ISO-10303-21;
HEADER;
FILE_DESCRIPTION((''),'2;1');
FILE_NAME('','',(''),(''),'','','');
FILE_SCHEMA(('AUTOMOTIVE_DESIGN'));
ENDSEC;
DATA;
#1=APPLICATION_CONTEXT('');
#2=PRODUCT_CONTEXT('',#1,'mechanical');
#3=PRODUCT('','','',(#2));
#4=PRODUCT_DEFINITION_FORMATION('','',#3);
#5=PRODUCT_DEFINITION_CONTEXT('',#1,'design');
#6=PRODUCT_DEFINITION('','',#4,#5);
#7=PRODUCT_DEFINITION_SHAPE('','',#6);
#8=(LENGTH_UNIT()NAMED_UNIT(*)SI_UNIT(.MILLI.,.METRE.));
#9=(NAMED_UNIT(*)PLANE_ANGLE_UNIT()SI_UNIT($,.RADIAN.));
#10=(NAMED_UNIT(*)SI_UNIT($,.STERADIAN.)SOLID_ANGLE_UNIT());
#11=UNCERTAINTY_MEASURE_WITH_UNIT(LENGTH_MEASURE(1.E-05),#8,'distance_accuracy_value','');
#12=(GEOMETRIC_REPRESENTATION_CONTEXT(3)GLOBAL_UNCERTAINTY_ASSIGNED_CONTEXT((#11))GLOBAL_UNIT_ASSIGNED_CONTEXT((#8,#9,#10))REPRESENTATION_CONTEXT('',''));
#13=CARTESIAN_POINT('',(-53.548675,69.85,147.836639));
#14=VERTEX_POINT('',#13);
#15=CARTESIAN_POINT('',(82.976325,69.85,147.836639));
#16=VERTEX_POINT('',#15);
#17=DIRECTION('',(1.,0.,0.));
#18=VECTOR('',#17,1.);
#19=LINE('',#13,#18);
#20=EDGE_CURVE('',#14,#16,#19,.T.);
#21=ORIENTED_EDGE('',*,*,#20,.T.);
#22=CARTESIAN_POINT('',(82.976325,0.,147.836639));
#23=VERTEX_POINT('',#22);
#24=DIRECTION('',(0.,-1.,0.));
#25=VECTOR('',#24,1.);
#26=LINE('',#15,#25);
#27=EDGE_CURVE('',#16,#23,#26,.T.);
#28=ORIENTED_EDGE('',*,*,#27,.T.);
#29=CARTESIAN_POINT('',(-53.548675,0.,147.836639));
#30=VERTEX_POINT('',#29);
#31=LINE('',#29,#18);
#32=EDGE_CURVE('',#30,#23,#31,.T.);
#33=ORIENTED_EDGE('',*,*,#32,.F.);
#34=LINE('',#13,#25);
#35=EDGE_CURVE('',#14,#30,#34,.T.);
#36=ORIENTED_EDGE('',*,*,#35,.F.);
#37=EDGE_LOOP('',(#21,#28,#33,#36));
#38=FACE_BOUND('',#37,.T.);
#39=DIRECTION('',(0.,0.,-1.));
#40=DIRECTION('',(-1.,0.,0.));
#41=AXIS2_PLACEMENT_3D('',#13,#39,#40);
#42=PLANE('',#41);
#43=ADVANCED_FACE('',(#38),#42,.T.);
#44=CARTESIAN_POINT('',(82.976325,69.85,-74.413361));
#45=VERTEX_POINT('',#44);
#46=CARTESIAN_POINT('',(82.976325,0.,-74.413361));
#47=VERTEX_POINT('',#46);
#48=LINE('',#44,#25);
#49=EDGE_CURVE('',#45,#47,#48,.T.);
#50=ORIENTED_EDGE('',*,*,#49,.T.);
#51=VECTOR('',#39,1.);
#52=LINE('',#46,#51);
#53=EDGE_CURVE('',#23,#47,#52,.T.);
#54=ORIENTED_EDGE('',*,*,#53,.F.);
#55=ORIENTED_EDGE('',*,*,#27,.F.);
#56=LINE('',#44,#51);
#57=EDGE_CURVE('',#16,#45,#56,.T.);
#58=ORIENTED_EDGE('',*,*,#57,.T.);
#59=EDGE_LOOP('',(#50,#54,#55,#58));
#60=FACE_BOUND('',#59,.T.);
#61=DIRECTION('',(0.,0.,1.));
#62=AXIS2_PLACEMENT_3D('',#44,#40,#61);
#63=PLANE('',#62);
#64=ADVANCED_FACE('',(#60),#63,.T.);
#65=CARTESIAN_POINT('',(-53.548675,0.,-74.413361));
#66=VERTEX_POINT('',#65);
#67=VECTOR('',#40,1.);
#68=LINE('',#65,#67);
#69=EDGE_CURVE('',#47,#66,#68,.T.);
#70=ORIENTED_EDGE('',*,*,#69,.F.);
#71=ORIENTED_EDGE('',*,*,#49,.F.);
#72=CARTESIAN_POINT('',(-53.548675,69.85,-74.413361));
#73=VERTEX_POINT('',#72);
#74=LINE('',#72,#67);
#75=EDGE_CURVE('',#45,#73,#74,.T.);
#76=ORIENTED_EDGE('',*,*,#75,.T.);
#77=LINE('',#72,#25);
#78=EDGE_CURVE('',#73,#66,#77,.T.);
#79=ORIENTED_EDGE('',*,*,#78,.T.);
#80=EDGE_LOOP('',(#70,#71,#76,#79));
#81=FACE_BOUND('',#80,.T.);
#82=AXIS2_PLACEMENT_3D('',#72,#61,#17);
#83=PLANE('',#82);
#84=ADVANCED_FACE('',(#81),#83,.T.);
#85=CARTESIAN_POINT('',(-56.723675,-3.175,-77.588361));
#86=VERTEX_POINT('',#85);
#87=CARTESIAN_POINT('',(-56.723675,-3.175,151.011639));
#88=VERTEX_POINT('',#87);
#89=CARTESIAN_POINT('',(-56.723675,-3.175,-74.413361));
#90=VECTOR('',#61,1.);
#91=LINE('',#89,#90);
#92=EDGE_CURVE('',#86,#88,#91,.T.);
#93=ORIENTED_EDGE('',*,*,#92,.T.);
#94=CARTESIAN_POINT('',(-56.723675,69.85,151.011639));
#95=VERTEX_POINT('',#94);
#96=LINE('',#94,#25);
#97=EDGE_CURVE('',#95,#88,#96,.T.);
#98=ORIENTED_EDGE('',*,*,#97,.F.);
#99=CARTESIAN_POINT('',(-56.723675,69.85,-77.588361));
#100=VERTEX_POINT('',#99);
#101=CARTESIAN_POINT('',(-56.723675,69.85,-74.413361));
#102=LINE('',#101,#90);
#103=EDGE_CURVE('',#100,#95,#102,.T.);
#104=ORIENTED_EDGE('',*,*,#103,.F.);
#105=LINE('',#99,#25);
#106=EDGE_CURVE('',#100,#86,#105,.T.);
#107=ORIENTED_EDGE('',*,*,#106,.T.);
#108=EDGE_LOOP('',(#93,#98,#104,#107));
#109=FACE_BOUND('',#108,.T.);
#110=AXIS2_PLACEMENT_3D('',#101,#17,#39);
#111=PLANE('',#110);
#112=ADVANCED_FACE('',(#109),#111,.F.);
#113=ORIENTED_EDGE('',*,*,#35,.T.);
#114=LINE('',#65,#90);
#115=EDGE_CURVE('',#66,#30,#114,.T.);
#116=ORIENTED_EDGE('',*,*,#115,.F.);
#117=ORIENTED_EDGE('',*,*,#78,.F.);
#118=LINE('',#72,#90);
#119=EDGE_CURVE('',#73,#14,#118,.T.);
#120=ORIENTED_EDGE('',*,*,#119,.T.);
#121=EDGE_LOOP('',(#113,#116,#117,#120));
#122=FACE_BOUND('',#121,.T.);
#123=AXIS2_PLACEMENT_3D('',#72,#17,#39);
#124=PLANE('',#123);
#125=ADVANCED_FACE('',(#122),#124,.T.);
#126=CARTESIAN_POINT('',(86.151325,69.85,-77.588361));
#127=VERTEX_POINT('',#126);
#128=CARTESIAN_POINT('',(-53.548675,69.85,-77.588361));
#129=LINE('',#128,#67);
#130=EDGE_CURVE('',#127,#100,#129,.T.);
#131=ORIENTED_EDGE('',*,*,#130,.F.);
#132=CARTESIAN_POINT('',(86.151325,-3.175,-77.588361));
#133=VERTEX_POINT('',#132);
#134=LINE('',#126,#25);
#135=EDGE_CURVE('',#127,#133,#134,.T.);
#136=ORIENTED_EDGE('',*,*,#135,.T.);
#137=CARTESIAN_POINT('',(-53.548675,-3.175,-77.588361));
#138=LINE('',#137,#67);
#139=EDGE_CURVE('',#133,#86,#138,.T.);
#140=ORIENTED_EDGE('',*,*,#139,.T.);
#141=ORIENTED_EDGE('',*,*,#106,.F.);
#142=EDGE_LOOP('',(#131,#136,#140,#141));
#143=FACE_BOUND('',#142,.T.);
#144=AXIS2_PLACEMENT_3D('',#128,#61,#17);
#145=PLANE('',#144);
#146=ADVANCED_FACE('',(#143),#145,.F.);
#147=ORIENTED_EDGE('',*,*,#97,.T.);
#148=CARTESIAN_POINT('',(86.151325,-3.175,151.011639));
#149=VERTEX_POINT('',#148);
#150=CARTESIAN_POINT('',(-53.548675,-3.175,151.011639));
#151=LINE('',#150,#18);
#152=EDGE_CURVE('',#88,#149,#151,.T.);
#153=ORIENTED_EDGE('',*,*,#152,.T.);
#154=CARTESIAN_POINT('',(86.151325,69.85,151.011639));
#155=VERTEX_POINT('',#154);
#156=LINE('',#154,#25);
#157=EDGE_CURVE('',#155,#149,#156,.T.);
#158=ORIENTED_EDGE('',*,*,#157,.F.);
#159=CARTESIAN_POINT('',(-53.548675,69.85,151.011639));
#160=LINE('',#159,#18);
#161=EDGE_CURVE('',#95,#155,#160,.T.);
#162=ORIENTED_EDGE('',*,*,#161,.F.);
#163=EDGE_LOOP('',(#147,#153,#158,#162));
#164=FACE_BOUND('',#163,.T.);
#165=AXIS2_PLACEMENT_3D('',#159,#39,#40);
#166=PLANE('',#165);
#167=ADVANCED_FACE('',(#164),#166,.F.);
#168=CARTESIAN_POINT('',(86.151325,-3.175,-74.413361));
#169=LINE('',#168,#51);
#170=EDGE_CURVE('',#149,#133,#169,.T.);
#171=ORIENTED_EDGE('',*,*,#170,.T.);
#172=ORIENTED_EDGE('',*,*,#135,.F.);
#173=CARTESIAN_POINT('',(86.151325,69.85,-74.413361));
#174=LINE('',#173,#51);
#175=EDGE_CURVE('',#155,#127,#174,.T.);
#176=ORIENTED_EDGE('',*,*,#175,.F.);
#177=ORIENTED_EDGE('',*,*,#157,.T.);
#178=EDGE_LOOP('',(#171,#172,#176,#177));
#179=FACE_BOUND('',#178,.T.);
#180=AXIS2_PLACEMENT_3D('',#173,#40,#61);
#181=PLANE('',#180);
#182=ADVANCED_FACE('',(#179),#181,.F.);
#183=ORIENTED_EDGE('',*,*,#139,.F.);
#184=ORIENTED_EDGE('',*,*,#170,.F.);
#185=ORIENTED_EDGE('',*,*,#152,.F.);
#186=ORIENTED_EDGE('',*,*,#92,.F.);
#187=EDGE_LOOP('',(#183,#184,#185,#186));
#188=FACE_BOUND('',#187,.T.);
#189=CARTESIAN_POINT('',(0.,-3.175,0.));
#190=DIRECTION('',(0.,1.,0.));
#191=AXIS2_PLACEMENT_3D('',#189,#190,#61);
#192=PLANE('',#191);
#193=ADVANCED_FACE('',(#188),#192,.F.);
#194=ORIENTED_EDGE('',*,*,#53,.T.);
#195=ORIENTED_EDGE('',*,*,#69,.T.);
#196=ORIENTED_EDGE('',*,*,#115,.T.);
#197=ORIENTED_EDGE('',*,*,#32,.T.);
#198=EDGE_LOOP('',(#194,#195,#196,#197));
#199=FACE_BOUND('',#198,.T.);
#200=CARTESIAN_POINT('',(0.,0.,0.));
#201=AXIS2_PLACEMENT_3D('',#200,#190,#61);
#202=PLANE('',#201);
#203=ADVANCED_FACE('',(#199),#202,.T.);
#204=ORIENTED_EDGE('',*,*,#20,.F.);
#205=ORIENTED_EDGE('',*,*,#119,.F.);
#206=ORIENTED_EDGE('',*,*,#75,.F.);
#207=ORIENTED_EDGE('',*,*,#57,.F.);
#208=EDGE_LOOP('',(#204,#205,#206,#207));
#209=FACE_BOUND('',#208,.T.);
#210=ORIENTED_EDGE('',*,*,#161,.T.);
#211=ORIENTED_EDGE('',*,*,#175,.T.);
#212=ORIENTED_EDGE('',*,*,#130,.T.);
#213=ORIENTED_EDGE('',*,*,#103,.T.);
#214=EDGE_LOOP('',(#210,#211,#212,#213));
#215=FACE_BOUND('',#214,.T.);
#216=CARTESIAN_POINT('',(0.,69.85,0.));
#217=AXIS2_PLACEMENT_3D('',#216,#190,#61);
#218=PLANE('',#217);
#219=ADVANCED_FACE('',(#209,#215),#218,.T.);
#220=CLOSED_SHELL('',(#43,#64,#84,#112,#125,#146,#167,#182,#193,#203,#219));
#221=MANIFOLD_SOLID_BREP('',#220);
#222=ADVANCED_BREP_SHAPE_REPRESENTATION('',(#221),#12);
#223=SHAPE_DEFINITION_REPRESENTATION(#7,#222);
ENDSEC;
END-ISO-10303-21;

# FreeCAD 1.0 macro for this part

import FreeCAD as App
import Part
import Sketcher
Q = App.Units.Quantity


def faces_at(feature, points):
    """Names of the faces that lie closest to the given points."""
    faces = feature.Shape.Faces
    near = lambda p: min(range(len(faces)), key=lambda i: faces[i].distToShape(Part.Vertex(*p))[0])
    return sorted({f"Face{near(p) + 1}" for p in points})


def add_polygon(sketch, points):
    """Adds a closed chain of lines whose ends are joined by coincident constraints."""
    first, n = sketch.GeometryCount, len(points)
    for a, b in zip(points, points[1:] + points[:1]):
        sketch.addGeometry(Part.LineSegment(App.Vector(*a, 0), App.Vector(*b, 0)), False)
    for i in range(n):
        sketch.addConstraint(Sketcher.Constraint("Coincident", first + i, 2, first + (i + 1) % n, 1))

doc = App.newDocument("Part")
body = doc.addObject("PartDesign::Body", "Body")

# Sketch on XZ plane
sketch1 = doc.addObject("Sketcher::SketchObject", "Sketch")
body.addObject(sketch1)
sketch1.AttachmentSupport = (doc.XZ_Plane, [""])
sketch1.MapMode = "FlatFace"
add_polygon(sketch1, [(-54, -74), (-54, 148), (83, 148), (83, -74)])  # lines 0-3
sketch1.addConstraint([
    Sketcher.Constraint("Vertical", 0),
    Sketcher.Constraint("Horizontal", 1),
    Sketcher.Constraint("Vertical", 2),
    Sketcher.Constraint("Horizontal", 3),
    Sketcher.Constraint("DistanceY", 0, 1, 0, 2, Q("8.75 in")),
    Sketcher.Constraint("DistanceX", 1, 1, 1, 2, Q("5.375 in")),
    Sketcher.Constraint("DistanceY", -1, 1, 0, 2, Q("147.836639 mm")),
    Sketcher.Constraint("DistanceX", 0, 2, -1, 1, Q("53.548675 mm")),
])
pad1 = doc.addObject("PartDesign::Pad", "Pad")
body.addObject(pad1)
pad1.Profile = sketch1
pad1.Length = Q("2.75 in")
pad1.Reversed = True
doc.recompute()

thickness = doc.addObject("PartDesign::Thickness", "Thickness")
body.addObject(thickness)
thickness.Base = (pad1, faces_at(pad1, [(14.714, 69.85, 36.712)]))
thickness.Value = Q("0.125 in")
thickness.Reversed = False
thickness.Join = "Intersection"

doc.recompute()
